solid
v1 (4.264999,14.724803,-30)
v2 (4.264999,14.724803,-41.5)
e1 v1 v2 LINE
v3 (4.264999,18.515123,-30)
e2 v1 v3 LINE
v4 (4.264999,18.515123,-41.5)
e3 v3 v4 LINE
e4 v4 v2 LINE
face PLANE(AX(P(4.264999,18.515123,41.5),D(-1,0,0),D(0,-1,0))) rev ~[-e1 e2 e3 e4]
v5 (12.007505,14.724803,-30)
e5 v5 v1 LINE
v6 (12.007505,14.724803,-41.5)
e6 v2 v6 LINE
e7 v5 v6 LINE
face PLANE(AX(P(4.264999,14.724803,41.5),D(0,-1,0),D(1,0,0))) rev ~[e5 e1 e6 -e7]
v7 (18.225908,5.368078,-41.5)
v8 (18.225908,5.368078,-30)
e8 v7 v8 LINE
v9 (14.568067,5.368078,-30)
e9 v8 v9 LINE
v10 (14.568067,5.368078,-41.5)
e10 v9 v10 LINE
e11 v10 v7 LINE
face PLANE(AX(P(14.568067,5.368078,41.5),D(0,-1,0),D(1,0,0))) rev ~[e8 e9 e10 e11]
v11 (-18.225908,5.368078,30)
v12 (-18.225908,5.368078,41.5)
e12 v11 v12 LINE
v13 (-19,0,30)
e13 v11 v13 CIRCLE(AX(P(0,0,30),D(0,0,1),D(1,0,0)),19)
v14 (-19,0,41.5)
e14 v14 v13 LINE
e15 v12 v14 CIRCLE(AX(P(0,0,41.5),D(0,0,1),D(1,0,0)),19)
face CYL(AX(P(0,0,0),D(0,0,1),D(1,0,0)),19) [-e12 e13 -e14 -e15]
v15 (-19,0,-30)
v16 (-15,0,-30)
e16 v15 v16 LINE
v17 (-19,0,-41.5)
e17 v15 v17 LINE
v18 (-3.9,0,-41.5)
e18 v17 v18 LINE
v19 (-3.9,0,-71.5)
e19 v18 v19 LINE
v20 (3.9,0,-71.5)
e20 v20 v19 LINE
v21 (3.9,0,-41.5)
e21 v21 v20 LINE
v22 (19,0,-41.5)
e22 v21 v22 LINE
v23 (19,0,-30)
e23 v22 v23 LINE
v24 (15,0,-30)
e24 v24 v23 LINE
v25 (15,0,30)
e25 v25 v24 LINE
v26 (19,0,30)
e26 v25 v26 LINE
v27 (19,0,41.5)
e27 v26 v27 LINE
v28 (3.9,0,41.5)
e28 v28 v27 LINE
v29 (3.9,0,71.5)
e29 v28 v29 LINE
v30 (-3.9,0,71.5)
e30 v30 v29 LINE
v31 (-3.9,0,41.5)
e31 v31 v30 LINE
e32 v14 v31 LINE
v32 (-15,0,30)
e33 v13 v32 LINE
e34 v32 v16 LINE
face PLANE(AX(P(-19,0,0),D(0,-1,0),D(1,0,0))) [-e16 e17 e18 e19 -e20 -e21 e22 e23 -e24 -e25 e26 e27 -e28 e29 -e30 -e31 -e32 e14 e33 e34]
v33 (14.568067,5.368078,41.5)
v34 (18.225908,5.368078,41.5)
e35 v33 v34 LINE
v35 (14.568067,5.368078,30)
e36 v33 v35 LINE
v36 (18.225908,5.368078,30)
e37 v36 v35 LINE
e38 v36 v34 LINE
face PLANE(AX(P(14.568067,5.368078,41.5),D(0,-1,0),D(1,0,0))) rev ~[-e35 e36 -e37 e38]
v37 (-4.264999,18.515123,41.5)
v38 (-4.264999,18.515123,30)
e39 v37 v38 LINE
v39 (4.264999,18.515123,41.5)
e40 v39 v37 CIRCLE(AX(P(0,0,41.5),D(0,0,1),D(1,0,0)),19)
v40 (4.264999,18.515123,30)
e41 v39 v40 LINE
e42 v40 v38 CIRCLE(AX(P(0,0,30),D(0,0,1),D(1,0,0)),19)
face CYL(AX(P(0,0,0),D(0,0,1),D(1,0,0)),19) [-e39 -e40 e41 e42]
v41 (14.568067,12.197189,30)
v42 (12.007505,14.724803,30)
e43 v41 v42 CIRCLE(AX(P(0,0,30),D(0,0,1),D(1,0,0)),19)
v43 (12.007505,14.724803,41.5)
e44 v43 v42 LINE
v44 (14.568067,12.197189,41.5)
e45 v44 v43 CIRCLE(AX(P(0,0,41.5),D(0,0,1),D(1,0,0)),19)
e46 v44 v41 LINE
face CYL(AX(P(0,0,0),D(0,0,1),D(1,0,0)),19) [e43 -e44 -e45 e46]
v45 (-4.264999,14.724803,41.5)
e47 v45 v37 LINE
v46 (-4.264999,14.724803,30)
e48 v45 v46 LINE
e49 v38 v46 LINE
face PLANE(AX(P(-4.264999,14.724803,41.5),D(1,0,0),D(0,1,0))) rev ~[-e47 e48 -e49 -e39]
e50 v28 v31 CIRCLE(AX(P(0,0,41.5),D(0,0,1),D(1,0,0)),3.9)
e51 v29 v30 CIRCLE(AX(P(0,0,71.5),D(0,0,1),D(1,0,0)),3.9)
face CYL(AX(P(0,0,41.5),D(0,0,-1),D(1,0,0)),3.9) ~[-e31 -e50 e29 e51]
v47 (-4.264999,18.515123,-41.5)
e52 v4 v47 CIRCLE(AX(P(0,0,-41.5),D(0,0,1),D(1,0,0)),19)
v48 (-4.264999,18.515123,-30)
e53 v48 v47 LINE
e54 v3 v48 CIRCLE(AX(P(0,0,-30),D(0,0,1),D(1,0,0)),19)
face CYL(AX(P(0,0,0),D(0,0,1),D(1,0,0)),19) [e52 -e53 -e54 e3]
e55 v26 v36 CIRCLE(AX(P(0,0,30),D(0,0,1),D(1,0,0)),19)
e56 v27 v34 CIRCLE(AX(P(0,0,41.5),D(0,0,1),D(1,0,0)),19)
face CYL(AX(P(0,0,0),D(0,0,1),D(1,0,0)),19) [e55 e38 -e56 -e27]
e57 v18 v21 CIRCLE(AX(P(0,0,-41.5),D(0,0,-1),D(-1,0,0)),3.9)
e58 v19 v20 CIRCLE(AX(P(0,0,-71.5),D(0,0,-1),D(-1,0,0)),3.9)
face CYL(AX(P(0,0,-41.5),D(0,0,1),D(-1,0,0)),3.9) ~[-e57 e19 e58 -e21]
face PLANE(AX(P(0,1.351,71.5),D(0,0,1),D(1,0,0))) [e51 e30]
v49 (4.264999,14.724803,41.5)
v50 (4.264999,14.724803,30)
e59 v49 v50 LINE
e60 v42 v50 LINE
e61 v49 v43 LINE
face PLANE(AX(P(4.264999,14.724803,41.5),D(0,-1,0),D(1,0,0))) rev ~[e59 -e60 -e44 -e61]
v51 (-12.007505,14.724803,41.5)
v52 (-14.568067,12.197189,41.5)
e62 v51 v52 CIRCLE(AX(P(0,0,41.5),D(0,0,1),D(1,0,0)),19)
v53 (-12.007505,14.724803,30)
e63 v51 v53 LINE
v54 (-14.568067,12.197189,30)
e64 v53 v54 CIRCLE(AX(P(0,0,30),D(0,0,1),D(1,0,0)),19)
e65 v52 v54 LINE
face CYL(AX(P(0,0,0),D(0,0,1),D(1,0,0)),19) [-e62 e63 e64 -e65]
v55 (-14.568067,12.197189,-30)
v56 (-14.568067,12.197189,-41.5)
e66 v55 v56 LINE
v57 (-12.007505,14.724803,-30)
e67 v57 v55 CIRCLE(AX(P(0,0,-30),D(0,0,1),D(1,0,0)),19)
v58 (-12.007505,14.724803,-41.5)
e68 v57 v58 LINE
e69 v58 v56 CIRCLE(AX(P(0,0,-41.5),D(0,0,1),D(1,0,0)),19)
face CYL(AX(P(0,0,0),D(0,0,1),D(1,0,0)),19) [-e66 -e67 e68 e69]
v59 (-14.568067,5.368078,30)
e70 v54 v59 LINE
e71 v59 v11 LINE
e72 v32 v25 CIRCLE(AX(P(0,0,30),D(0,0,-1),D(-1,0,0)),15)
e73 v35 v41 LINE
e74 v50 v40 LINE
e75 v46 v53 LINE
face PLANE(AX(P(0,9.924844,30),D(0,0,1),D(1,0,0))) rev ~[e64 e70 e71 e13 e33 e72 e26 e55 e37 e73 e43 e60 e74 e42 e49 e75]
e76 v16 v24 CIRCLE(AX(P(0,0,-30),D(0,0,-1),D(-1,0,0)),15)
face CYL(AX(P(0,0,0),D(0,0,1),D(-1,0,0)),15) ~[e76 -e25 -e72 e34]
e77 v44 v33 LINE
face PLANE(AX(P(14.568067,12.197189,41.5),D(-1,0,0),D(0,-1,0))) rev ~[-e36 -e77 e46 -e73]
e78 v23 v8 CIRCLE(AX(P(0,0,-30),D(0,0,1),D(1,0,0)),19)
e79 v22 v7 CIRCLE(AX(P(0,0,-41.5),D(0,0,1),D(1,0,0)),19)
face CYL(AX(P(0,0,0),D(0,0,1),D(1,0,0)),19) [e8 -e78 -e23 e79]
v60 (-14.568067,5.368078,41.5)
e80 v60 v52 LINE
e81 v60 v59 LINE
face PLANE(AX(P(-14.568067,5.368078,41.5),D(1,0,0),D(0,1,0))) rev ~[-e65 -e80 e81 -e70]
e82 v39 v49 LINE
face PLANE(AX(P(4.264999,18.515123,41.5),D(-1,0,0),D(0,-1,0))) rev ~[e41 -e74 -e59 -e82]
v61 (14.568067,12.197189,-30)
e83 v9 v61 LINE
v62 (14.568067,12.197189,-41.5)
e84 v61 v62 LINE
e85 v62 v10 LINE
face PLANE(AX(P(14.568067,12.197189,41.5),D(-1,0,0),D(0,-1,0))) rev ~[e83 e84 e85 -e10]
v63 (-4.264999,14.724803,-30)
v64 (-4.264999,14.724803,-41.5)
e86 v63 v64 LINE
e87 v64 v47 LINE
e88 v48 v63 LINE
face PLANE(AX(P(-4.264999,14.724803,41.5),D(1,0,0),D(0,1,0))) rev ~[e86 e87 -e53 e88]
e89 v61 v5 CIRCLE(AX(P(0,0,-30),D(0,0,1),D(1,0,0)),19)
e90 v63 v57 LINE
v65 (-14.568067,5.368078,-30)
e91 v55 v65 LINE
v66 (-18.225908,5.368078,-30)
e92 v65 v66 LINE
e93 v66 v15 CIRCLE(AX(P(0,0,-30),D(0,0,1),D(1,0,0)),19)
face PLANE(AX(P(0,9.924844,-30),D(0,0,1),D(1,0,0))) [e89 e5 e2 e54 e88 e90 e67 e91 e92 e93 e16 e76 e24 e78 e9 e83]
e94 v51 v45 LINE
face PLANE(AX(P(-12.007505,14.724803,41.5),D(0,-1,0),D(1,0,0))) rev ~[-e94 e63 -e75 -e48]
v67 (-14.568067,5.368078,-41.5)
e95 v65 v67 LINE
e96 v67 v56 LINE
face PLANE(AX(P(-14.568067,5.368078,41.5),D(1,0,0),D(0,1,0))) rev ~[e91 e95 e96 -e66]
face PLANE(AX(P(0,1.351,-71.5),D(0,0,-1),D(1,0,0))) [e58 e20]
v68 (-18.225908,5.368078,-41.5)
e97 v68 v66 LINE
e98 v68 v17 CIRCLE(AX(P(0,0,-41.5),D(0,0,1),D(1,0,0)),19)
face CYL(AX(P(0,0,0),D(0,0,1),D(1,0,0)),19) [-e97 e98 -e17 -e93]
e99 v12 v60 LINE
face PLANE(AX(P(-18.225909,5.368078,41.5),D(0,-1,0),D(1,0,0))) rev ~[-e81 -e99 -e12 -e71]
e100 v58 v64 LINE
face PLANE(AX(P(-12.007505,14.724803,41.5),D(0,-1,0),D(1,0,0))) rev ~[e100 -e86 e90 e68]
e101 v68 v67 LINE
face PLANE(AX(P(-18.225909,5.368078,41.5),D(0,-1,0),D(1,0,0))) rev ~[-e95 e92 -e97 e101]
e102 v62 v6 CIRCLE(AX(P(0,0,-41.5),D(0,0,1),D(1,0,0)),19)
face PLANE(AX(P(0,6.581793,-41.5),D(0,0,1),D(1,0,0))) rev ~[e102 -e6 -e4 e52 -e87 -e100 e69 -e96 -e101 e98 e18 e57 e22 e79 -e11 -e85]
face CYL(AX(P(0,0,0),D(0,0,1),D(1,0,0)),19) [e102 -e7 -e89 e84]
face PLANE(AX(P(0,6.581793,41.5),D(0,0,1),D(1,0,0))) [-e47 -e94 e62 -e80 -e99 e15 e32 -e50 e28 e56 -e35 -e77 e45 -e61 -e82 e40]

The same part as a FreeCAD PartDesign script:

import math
import FreeCAD as App
import Part
import Sketcher

V = App.Vector
Q = App.Units.Quantity

doc = App.newDocument("Part")
body = doc.addObject("PartDesign::Body", "Body")

# Sketch on XY plane
sketch1 = body.newObject("Sketcher::SketchObject", "Sketch")
sketch1.AttachmentSupport = (doc.getObject("XY_Plane"), [""])
sketch1.MapMode = "FlatFace"
sketch1.addGeometry([
    Part.LineSegment(V(-19, 0, 0), V(19, 0, 0)),
    Part.ArcOfCircle(Part.Circle(V(0, 0, 0), V(0, 0, 1), 19), math.radians(0), math.radians(180)),
], False)
sketch1.addConstraint([
    Sketcher.Constraint("Coincident", 0, 1, 1, 2),
    Sketcher.Constraint("Coincident", 1, 1, 0, 2),
    Sketcher.Constraint("Horizontal", 0),
    Sketcher.Constraint("Coincident", 1, 3, -1, 1),
    Sketcher.Constraint("PointOnObject", 0, 1, -1),
    Sketcher.Constraint("Radius", 1, Q("19 mm")),
])
pad1 = body.newObject("PartDesign::Pad", "Pad")
pad1.Profile = sketch1
pad1.Length = 83
pad1.Midplane = True

# Sketch on XY plane
sketch2 = body.newObject("Sketcher::SketchObject", "Sketch001")
sketch2.AttachmentSupport = (doc.getObject("XY_Plane"), [""])
sketch2.MapMode = "FlatFace"
sketch2.AttachmentOffset = App.Placement(V(0, 0, 41.5), App.Rotation())
sketch2.addGeometry([
    Part.LineSegment(V(-3.9, 0, 0), V(3.9, 0, 0)),
    Part.ArcOfCircle(Part.Circle(V(0, 0, 0), V(0, 0, 1), 3.9), math.radians(0), math.radians(180)),
], False)
sketch2.addConstraint([
    Sketcher.Constraint("Coincident", 0, 1, 1, 2),
    Sketcher.Constraint("Coincident", 1, 1, 0, 2),
    Sketcher.Constraint("Horizontal", 0),
    Sketcher.Constraint("Coincident", 1, 3, -1, 1),
    Sketcher.Constraint("PointOnObject", 0, 1, -1),
    Sketcher.Constraint("Radius", 1, Q("3.9 mm")),
])
pad2 = body.newObject("PartDesign::Pad", "Pad001")
pad2.Profile = sketch2
pad2.Length = 30

# Sketch on XY plane
sketch3 = body.newObject("Sketcher::SketchObject", "Sketch002")
sketch3.AttachmentSupport = (doc.getObject("XY_Plane"), [""])
sketch3.MapMode = "FlatFace"
sketch3.AttachmentOffset = App.Placement(V(0, 0, -41.5), App.Rotation())
sketch3.addGeometry([
    Part.LineSegment(V(3.9, 0, 0), V(-3.9, 0, 0)),
    Part.ArcOfCircle(Part.Circle(V(0, 0, 0), V(0, 0, 1), 3.9), math.radians(0), math.radians(180)),
], False)
sketch3.addConstraint([
    Sketcher.Constraint("Coincident", 0, 1, 1, 1),
    Sketcher.Constraint("Coincident", 1, 2, 0, 2),
    Sketcher.Constraint("Horizontal", 0),
    Sketcher.Constraint("Coincident", 1, 3, -1, 1),
    Sketcher.Constraint("PointOnObject", 0, 1, -1),
    Sketcher.Constraint("Radius", 1, Q("3.9 mm")),
])
pad3 = body.newObject("PartDesign::Pad", "Pad002")
pad3.Profile = sketch3
pad3.Length = 30
pad3.Reversed = True

# Sketch on XY plane
sketch4 = body.newObject("Sketcher::SketchObject", "Sketch003")
sketch4.AttachmentSupport = (doc.getObject("XY_Plane"), [""])
sketch4.MapMode = "FlatFace"
sketch4.AttachmentOffset = App.Placement(V(0, 0, 41.5), App.Rotation())
sketch4.addGeometry([
    Part.LineSegment(V(-14.568067, 5.368078, 0), V(-14.568067, 12.197189, 0)),  # 0
    Part.ArcOfCircle(Part.Circle(V(0.000023, -0.000014, 0), V(0, 0, 1), 19.000026), math.radians(140.062084), math.radians(163.588693)),  # 1
    Part.LineSegment(V(-18.225909, 5.368078, 0), V(-14.568067, 5.368078, 0)),  # 2
    Part.LineSegment(V(-4.264999, 14.724803, 0), V(-4.264999, 18.515123, 0)),  # 3
    Part.ArcOfCircle(Part.Circle(V(-0.000011, 0.000023, 0), V(0, 0, 1), 18.999975), math.radians(102.97191), math.radians(129.195924)),  # 4
    Part.LineSegment(V(-12.007505, 14.724803, 0), V(-4.264999, 14.724803, 0)),  # 5
    Part.ArcOfCircle(Part.Circle(V(0.000011, 0.000023, 0), V(0, 0, 1), 18.999975), math.radians(50.804076), math.radians(77.02809)),  # 6
    Part.LineSegment(V(4.264999, 18.515123, 0), V(4.264999, 14.724803, 0)),  # 7
    Part.LineSegment(V(4.264999, 14.724803, 0), V(12.007505, 14.724803, 0)),  # 8
    Part.ArcOfCircle(Part.Circle(V(-0.000023, -0.000014, 0), V(0, 0, 1), 19.000026), math.radians(16.411307), math.radians(39.937916)),  # 9
    Part.LineSegment(V(14.568067, 12.197189, 0), V(14.568067, 5.368078, 0)),  # 10
    Part.LineSegment(V(14.568067, 5.368078, 0), V(18.225909, 5.368078, 0)),  # 11
], False)
sketch4.addConstraint([
    Sketcher.Constraint("Coincident", 0, 2, 1, 1),
    Sketcher.Constraint("Coincident", 1, 2, 2, 1),
    Sketcher.Constraint("Coincident", 2, 2, 0, 1),
    Sketcher.Constraint("Coincident", 3, 2, 4, 1),
    Sketcher.Constraint("Coincident", 4, 2, 5, 1),
    Sketcher.Constraint("Coincident", 5, 2, 3, 1),
    Sketcher.Constraint("Coincident", 6, 2, 7, 1),
    Sketcher.Constraint("Coincident", 7, 2, 8, 1),
    Sketcher.Constraint("Coincident", 8, 2, 6, 1),
    Sketcher.Constraint("Coincident", 9, 2, 10, 1),
    Sketcher.Constraint("Coincident", 10, 2, 11, 1),
    Sketcher.Constraint("Coincident", 11, 2, 9, 1),
    Sketcher.Constraint("Vertical", 0),
    Sketcher.Constraint("Horizontal", 2),
    Sketcher.Constraint("Vertical", 3),
    Sketcher.Constraint("Horizontal", 5),
    Sketcher.Constraint("Vertical", 7),
    Sketcher.Constraint("Horizontal", 8),
    Sketcher.Constraint("Vertical", 10),
    Sketcher.Constraint("Horizontal", 11),
    Sketcher.Constraint("Equal", 4, 6),
    Sketcher.Constraint("Equal", 1, 9),
    Sketcher.Constraint("Symmetric", 4, 3, 6, 3, -2),
    Sketcher.Constraint("Symmetric", 1, 3, 9, 3, -2),
    Sketcher.Constraint("Symmetric", 5, 2, 7, 2, -2),
    Sketcher.Constraint("Symmetric", 2, 2, 10, 2, -2),
    Sketcher.Constraint("DistanceX", 3, 2, 6, 2, Q("8.529998 mm")),
    Sketcher.Constraint("Radius", 1, Q("19.000026 mm")),
    Sketcher.Constraint("Radius", 4, Q("18.999975 mm")),
    Sketcher.Constraint("DistanceY", 0, 1, 0, 2, Q("6.829111 mm")),
    Sketcher.Constraint("DistanceY", 3, 1, 3, 2, Q("3.79032 mm")),
    Sketcher.Constraint("DistanceY", 4, 3, 3, 2, Q("18.5151 mm")),
    Sketcher.Constraint("DistanceX", 2, 1, 2, 2, Q("3.657842 mm")),
    Sketcher.Constraint("DistanceY", -1, 1, 0, 2, Q("12.197189 mm")),
    Sketcher.Constraint("DistanceX", 1, 2, -1, 1, Q("18.225909 mm")),
    Sketcher.Constraint("DistanceY", -1, 1, 3, 2, Q("18.515123 mm")),
])
pocket1 = body.newObject("PartDesign::Pocket", "Pocket")
pocket1.Profile = sketch4
pocket1.Type = "ThroughAll"

# Sketch on XY plane
sketch5 = body.newObject("Sketcher::SketchObject", "Sketch004")
sketch5.AttachmentSupport = (doc.getObject("XY_Plane"), [""])
sketch5.MapMode = "FlatFace"
sketch5.addGeometry([
    Part.LineSegment(V(15, 0, 0), V(22, 0, 0)),
    Part.ArcOfCircle(Part.Circle(V(0, 0, 0), V(0, 0, 1), 22), math.radians(0), math.radians(180)),
    Part.LineSegment(V(-22, 0, 0), V(-15, 0, 0)),
    Part.ArcOfCircle(Part.Circle(V(0, 0, 0), V(0, 0, 1), 15), math.radians(0), math.radians(180)),
], False)
sketch5.addConstraint([
    Sketcher.Constraint("Coincident", 0, 2, 1, 1),
    Sketcher.Constraint("Coincident", 1, 2, 2, 1),
    Sketcher.Constraint("Coincident", 2, 2, 3, 2),
    Sketcher.Constraint("Coincident", 3, 1, 0, 1),
    Sketcher.Constraint("Horizontal", 0),
    Sketcher.Constraint("Horizontal", 2),
    Sketcher.Constraint("Coincident", 1, 3, -1, 1),
    Sketcher.Constraint("Coincident", 3, 3, -1, 1),
    Sketcher.Constraint("PointOnObject", 0, 2, -1),
    Sketcher.Constraint("PointOnObject", 1, 2, -1),
    Sketcher.Constraint("Radius", 3, Q("15 mm")),
    Sketcher.Constraint("Radius", 1, Q("22.459483 mm")),
])
pocket2 = body.newObject("PartDesign::Pocket", "Pocket001")
pocket2.Profile = sketch5
pocket2.Length = 60
pocket2.Midplane = True

doc.recompute()
